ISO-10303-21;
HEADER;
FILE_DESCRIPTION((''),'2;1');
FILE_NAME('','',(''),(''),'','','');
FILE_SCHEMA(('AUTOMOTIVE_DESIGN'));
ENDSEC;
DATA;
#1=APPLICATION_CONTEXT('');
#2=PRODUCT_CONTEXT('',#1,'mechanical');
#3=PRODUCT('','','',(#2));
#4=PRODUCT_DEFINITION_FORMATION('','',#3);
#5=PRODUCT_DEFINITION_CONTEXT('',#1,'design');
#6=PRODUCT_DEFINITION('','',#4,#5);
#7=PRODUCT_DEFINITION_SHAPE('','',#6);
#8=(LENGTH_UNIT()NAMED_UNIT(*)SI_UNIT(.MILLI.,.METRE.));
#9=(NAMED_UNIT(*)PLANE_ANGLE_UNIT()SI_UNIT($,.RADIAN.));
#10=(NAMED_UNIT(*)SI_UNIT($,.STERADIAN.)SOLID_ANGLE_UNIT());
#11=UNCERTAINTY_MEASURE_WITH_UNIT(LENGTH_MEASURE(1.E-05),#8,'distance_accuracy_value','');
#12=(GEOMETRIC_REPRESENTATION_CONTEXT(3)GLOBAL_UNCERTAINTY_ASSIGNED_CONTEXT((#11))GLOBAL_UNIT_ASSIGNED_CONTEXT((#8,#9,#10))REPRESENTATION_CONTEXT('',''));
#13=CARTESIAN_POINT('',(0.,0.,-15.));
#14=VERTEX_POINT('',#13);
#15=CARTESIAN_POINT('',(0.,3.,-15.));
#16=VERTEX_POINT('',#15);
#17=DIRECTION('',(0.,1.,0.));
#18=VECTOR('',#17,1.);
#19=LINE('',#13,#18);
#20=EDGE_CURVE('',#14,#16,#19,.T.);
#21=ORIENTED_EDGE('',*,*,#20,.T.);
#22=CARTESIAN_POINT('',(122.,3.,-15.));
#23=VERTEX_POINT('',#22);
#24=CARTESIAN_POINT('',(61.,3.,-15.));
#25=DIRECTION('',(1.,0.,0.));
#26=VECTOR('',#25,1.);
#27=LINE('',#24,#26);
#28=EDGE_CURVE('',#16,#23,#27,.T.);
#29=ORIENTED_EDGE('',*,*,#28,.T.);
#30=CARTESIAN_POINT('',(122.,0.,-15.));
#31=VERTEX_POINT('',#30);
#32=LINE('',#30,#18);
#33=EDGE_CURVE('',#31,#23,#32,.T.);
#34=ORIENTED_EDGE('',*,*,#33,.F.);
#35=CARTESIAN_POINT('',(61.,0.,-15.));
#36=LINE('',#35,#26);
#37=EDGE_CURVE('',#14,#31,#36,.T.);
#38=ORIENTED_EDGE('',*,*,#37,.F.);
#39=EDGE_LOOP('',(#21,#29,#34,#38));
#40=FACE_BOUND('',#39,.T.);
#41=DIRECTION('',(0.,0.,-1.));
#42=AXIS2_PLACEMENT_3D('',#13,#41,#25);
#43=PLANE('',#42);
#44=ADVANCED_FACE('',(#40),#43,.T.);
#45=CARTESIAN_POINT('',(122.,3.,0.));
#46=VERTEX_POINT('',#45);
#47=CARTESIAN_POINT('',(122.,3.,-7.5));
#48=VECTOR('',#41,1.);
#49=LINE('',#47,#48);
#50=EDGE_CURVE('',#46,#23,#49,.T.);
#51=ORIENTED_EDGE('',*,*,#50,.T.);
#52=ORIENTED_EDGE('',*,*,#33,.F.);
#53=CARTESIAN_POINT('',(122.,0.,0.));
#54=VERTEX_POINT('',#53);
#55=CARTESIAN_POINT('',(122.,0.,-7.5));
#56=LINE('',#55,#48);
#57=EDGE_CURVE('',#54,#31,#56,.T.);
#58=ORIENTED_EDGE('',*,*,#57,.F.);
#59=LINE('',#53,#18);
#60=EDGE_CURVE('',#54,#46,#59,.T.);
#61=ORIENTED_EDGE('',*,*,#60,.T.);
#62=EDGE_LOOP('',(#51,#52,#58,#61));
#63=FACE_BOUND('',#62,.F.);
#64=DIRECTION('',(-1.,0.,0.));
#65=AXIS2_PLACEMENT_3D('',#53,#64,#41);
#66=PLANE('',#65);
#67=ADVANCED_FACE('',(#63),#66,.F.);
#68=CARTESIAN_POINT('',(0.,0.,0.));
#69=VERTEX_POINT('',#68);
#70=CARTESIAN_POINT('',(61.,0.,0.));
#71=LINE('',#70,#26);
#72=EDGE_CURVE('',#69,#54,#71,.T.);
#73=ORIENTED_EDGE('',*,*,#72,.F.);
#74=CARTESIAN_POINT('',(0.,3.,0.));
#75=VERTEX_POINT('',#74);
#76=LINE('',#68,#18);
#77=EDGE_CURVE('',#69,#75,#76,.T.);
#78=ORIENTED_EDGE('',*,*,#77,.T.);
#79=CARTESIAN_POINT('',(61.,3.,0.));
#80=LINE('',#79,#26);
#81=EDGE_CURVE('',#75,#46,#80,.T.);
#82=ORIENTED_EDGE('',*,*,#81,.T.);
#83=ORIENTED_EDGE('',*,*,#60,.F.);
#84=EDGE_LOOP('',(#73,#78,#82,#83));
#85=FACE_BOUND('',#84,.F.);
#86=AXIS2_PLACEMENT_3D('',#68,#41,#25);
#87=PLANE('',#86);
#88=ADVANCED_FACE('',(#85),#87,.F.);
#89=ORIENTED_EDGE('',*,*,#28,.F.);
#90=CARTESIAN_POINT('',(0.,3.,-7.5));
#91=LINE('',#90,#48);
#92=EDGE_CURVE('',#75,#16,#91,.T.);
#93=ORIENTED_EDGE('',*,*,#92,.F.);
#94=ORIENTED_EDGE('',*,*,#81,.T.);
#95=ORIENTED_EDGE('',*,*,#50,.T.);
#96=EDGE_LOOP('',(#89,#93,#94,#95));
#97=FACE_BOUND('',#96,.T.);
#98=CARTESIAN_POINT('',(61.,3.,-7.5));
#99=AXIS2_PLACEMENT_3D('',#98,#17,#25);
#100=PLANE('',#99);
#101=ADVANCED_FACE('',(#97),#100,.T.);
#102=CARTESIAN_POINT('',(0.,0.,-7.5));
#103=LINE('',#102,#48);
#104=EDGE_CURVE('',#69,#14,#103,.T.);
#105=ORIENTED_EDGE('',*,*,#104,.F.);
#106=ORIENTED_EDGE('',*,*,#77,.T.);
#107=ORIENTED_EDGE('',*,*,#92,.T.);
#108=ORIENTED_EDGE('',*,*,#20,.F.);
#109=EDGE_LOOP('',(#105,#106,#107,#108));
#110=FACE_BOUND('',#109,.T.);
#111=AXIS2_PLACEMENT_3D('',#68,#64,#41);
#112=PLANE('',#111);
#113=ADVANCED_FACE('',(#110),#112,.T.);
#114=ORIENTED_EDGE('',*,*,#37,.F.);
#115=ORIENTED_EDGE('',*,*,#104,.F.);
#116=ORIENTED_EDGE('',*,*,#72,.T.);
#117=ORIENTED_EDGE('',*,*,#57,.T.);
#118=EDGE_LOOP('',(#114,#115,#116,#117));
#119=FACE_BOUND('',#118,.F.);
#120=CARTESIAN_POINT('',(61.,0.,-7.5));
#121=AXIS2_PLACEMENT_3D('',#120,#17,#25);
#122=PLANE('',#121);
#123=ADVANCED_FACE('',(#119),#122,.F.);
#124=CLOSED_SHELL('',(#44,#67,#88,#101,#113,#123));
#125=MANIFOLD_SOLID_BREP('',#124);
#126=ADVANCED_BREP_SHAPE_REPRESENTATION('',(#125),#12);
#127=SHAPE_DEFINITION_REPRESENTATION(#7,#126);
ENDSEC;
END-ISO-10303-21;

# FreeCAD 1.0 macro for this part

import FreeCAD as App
import Part
import Sketcher
Q = App.Units.Quantity


def add_polygon(sketch, points):
    """Adds a closed chain of lines whose ends are joined by coincident constraints."""
    first, n = sketch.GeometryCount, len(points)
    for a, b in zip(points, points[1:] + points[:1]):
        sketch.addGeometry(Part.LineSegment(App.Vector(*a, 0), App.Vector(*b, 0)), False)
    for i in range(n):
        sketch.addConstraint(Sketcher.Constraint("Coincident", first + i, 2, first + (i + 1) % n, 1))

doc = App.newDocument("Part")
body = doc.addObject("PartDesign::Body", "Body")

# Sketch on XZ plane
sketch1 = body.newObject("Sketcher::SketchObject", "Sketch")
sketch1.AttachmentSupport = (doc.getObject("XZ_Plane"), [""])
sketch1.MapMode = "FlatFace"
add_polygon(sketch1, [(0, -15), (0, 0), (122, 0), (122, -15)])  # lines 0-3
sketch1.addConstraint([
    Sketcher.Constraint("Vertical", 0),
    Sketcher.Constraint("Horizontal", 1),
    Sketcher.Constraint("Vertical", 2),
    Sketcher.Constraint("Horizontal", 3),
    Sketcher.Constraint("Coincident", 0, 2, -1, 1),
    Sketcher.Constraint("DistanceX", 1, 1, 1, 2, Q("122 mm")),
    Sketcher.Constraint("DistanceY", 0, 1, 0, 2, Q("15 mm")),
])
pad1 = body.newObject("PartDesign::Pad", "Pad")
pad1.Profile = sketch1
pad1.Length = 3
pad1.Reversed = True

doc.recompute()
